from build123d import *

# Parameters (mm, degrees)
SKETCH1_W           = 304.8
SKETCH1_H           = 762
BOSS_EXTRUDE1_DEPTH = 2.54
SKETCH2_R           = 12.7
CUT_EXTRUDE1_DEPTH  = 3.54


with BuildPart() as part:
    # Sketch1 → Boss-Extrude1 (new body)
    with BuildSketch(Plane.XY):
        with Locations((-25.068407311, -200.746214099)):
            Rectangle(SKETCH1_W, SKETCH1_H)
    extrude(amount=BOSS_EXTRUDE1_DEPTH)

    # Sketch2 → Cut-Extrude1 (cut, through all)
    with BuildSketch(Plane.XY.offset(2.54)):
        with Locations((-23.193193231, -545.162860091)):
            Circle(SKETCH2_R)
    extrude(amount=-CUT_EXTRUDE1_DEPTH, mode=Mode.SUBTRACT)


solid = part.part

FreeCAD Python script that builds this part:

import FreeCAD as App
import Part
import Sketcher
Q = App.Units.Quantity


def add_polygon(sketch, points):
    """Adds a closed chain of lines whose ends are joined by coincident constraints."""
    first, n = sketch.GeometryCount, len(points)
    for a, b in zip(points, points[1:] + points[:1]):
        sketch.addGeometry(Part.LineSegment(App.Vector(*a, 0), App.Vector(*b, 0)), False)
    for i in range(n):
        sketch.addConstraint(Sketcher.Constraint("Coincident", first + i, 2, first + (i + 1) % n, 1))

doc = App.newDocument("Part")
body = doc.addObject("PartDesign::Body", "Body")

# Sketch on XY plane
sketch1 = body.newObject("Sketcher::SketchObject", "Sketch")
sketch1.AttachmentSupport = (doc.getObject("XY_Plane"), [""])
sketch1.MapMode = "FlatFace"
add_polygon(sketch1, [(-177, 180), (-177, -582), (127, -582), (127, 180)])  # lines 0-3
sketch1.addConstraint([
    Sketcher.Constraint("Vertical", 0),
    Sketcher.Constraint("Horizontal", 1),
    Sketcher.Constraint("Vertical", 2),
    Sketcher.Constraint("Horizontal", 3),
    Sketcher.Constraint("DistanceX", 1, 1, 1, 2, Q("12 in")),
    Sketcher.Constraint("DistanceY", 0, 2, 0, 1, Q("30 in")),
    Sketcher.Constraint("DistanceX", 0, 2, -1, 1, 177.468407),
    Sketcher.Constraint("DistanceY", 0, 2, -1, 1, 581.746214),
])
pad1 = body.newObject("PartDesign::Pad", "Pad")
pad1.Profile = sketch1
pad1.Length = Q("0.1 in")

# Sketch on XY plane
sketch2 = body.newObject("Sketcher::SketchObject", "Sketch001")
sketch2.AttachmentSupport = (doc.getObject("XY_Plane"), [""])
sketch2.MapMode = "FlatFace"
sketch2.AttachmentOffset = App.Placement(App.Vector(0, 0, 0.1 * 25.4), App.Rotation())
sketch2.addGeometry(Part.Circle(App.Vector(-23, -545, 0), App.Vector(0, 0, 1), 13), False)
sketch2.addConstraint([
    Sketcher.Constraint("Diameter", 0, Q("1 in")),
    Sketcher.Constraint("DistanceY", 0, 3, -1, 1, 545.16286),
    Sketcher.Constraint("DistanceX", 0, 3, -1, 1, 23.193193),
])
pocket1 = body.newObject("PartDesign::Pocket", "Pocket")
pocket1.Profile = sketch2
pocket1.Type = "ThroughAll"

doc.recompute()
